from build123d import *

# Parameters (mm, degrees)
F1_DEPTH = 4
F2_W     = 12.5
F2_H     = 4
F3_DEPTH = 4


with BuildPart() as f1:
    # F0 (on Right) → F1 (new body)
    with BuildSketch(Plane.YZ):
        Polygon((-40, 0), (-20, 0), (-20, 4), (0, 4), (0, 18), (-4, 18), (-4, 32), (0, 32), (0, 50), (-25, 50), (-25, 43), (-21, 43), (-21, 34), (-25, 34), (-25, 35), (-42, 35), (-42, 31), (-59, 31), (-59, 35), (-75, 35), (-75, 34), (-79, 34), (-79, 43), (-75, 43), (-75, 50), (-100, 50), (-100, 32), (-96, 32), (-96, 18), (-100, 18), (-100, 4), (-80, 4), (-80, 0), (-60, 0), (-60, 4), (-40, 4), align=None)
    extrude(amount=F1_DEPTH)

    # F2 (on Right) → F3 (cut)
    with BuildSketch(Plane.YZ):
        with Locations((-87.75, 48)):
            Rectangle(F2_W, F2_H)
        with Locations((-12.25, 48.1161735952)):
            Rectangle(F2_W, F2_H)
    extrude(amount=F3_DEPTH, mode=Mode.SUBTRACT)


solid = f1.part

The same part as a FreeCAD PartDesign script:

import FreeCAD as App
import Part
import Sketcher
Q = App.Units.Quantity


def add_polygon(sketch, points):
    """Adds a closed chain of lines whose ends are joined by coincident constraints."""
    first, n = sketch.GeometryCount, len(points)
    for a, b in zip(points, points[1:] + points[:1]):
        sketch.addGeometry(Part.LineSegment(App.Vector(*a, 0), App.Vector(*b, 0)), False)
    for i in range(n):
        sketch.addConstraint(Sketcher.Constraint("Coincident", first + i, 2, first + (i + 1) % n, 1))

doc = App.newDocument("Part")
params = doc.addObject("Spreadsheet::Sheet", "Params")
for row, (alias, value) in enumerate([
    ("sketch1_width", "20 mm"),
    ("sketch1_width2", "4 mm"),
    ("sketch1_width3", "25 mm"),
    ("sketch1_width4", "17 mm"),
    ("sketch1_height", "14 mm"),
    ("pad1_length", "4 mm"),
    ("sketch2_height", "4 mm"),
    ("sketch2_width", "12.5 mm"),
    ("pocket1_length", "4 mm"),
], start=1):
    params.set(f"A{row}", alias)
    params.set(f"B{row}", "=" + value)
    params.setAlias(f"B{row}", alias)

body = doc.addObject("PartDesign::Body", "Body")

# Sketch on YZ plane
sketch1 = body.newObject("Sketcher::SketchObject", "Sketch")
sketch1.AttachmentSupport = (doc.getObject("YZ_Plane"), [""])
sketch1.MapMode = "FlatFace"
add_polygon(sketch1, [(-40, 0), (-20, 0), (-20, 4), (0, 4), (0, 18), (-4, 18), (-4, 32), (0, 32), (0, 50), (-25, 50), (-25, 43), (-21, 43), (-21, 34), (-25, 34), (-25, 35), (-42, 35), (-42, 31), (-59, 31), (-59, 35), (-75, 35), (-75, 34), (-79, 34), (-79, 43), (-75, 43), (-75, 50), (-100, 50), (-100, 32), (-96, 32), (-96, 18), (-100, 18), (-100, 4), (-80, 4), (-80, 0), (-60, 0), (-60, 4), (-40, 4)])  # lines 0-35
sketch1.addConstraint(Sketcher.Constraint("Horizontal", 0))
sketch1.addConstraint(Sketcher.Constraint("Vertical", 1))
sketch1.addConstraint(Sketcher.Constraint("Horizontal", 2))
sketch1.addConstraint(Sketcher.Constraint("Vertical", 3))
sketch1.addConstraint(Sketcher.Constraint("Horizontal", 4))
sketch1.addConstraint(Sketcher.Constraint("Vertical", 5))
sketch1.addConstraint(Sketcher.Constraint("Horizontal", 6))
sketch1.addConstraint(Sketcher.Constraint("Vertical", 7))
sketch1.addConstraint(Sketcher.Constraint("Horizontal", 8))
sketch1.addConstraint(Sketcher.Constraint("Vertical", 9))
sketch1.addConstraint(Sketcher.Constraint("Horizontal", 10))
sketch1.addConstraint(Sketcher.Constraint("Vertical", 11))
sketch1.addConstraint(Sketcher.Constraint("Horizontal", 12))
sketch1.addConstraint(Sketcher.Constraint("Vertical", 13))
sketch1.addConstraint(Sketcher.Constraint("Horizontal", 14))
sketch1.addConstraint(Sketcher.Constraint("Vertical", 15))
sketch1.addConstraint(Sketcher.Constraint("Horizontal", 16))
sketch1.addConstraint(Sketcher.Constraint("Vertical", 17))
sketch1.addConstraint(Sketcher.Constraint("Horizontal", 18))
sketch1.addConstraint(Sketcher.Constraint("Vertical", 19))
sketch1.addConstraint(Sketcher.Constraint("Horizontal", 20))
sketch1.addConstraint(Sketcher.Constraint("Vertical", 21))
sketch1.addConstraint(Sketcher.Constraint("Horizontal", 22))
sketch1.addConstraint(Sketcher.Constraint("Vertical", 23))
sketch1.addConstraint(Sketcher.Constraint("Horizontal", 24))
sketch1.addConstraint(Sketcher.Constraint("Vertical", 25))
sketch1.addConstraint(Sketcher.Constraint("Horizontal", 26))
sketch1.addConstraint(Sketcher.Constraint("Vertical", 27))
sketch1.addConstraint(Sketcher.Constraint("Horizontal", 28))
sketch1.addConstraint(Sketcher.Constraint("Vertical", 29))
sketch1.addConstraint(Sketcher.Constraint("Horizontal", 30))
sketch1.addConstraint(Sketcher.Constraint("Vertical", 31))
sketch1.addConstraint(Sketcher.Constraint("Horizontal", 32))
sketch1.addConstraint(Sketcher.Constraint("Vertical", 33))
sketch1.addConstraint(Sketcher.Constraint("Horizontal", 34))
sketch1.addConstraint(Sketcher.Constraint("Vertical", 35))
sketch1.addConstraint(Sketcher.Constraint("PointOnObject", 0, 2, -1))
sketch1.addConstraint(Sketcher.Constraint("PointOnObject", 2, 2, -2))
sketch1.addConstraint(Sketcher.Constraint("PointOnObject", 6, 2, -2))
sketch1.addConstraint(Sketcher.Constraint("PointOnObject", 31, 2, -1))
sketch1.addConstraint(Sketcher.Constraint("Horizontal", 14, 2, 17, 2))
sketch1.addConstraint(Sketcher.Constraint("Horizontal", 12, 2, 19, 2))
sketch1.addConstraint(Sketcher.Constraint("Horizontal", 10, 2, 21, 2))
sketch1.addConstraint(Sketcher.Constraint("Horizontal", 8, 2, 23, 2))
sketch1.addConstraint(Sketcher.Constraint("Horizontal", 6, 2, 25, 2))
sketch1.addConstraint(Sketcher.Constraint("Horizontal", 4, 2, 27, 2))
sketch1.addConstraint(Sketcher.Constraint("Horizontal", 2, 2, 29, 2))
sketch1.addConstraint(Sketcher.Constraint("Horizontal", 30, 2, 33, 2))
sketch1.addConstraint(Sketcher.Constraint("Vertical", 9, 2, 12, 2))
sketch1.addConstraint(Sketcher.Constraint("Vertical", 19, 2, 22, 2))
sketch1.addConstraint(Sketcher.Constraint("Vertical", 25, 2, 28, 2))
sketch1.addConstraint(Sketcher.Constraint("Equal", 0, 2))
sketch1.addConstraint(Sketcher.Constraint("Equal", 6, 10))
sketch1.addConstraint(Sketcher.Constraint("Equal", 14, 16))
sketch1.addConstraint(Sketcher.Constraint("Equal", 12, 20))
sketch1.addConstraint(Sketcher.Constraint("Equal", 8, 24))
sketch1.addConstraint(Sketcher.Constraint("Equal", 22, 26))
sketch1.addConstraint(Sketcher.Constraint("Equal", 2, 30))
sketch1.addConstraint(Sketcher.Constraint("Equal", 30, 32))
sketch1.addConstraint(Sketcher.Constraint("Equal", 32, 34))
sketch1.addConstraint(Sketcher.Constraint("Equal", 28, 1))
sketch1.addConstraint(Sketcher.Constraint("Equal", 3, 5))
sketch1.addConstraint(Sketcher.Constraint("Equal", 1, 15))
sketch1.addConstraint(Sketcher.Constraint("DistanceX", 0, 1, 0, 2, Q("20 mm")))
sketch1.addConstraint(Sketcher.Constraint("DistanceX", 4, 2, 4, 1, Q("4 mm")))
sketch1.addConstraint(Sketcher.Constraint("DistanceX", 8, 2, 8, 1, Q("25 mm")))
sketch1.addConstraint(Sketcher.Constraint("DistanceX", 14, 2, 14, 1, Q("17 mm")))
sketch1.addConstraint(Sketcher.Constraint("DistanceY", 3, 1, 3, 2, Q("14 mm")))
sketch1.addConstraint(Sketcher.Constraint("DistanceY", 7, 1, 7, 2, Q("18 mm")))
sketch1.addConstraint(Sketcher.Constraint("DistanceY", 9, 2, 9, 1, Q("7 mm")))
sketch1.addConstraint(Sketcher.Constraint("DistanceY", 11, 2, 11, 1, Q("9 mm")))
sketch1.addConstraint(Sketcher.Constraint("DistanceY", 13, 1, 13, 2, Q("1 mm")))
sketch1.setExpression("Constraints[99]", "Params.sketch1_width")
sketch1.setExpression("Constraints[100]", "Params.sketch1_width2")
sketch1.setExpression("Constraints[101]", "Params.sketch1_width3")
sketch1.setExpression("Constraints[102]", "Params.sketch1_width4")
sketch1.setExpression("Constraints[103]", "Params.sketch1_height")
pad1 = body.newObject("PartDesign::Pad", "Pad")
pad1.Profile = sketch1
pad1.setExpression("Length", "Params.pad1_length")

# Sketch on YZ plane
sketch2 = body.newObject("Sketcher::SketchObject", "Sketch001")
sketch2.AttachmentSupport = (doc.getObject("YZ_Plane"), [""])
sketch2.MapMode = "FlatFace"
add_polygon(sketch2, [(-94, 50), (-94, 46), (-81.5, 46), (-81.5, 50)])  # lines 0-3
add_polygon(sketch2, [(-18.5, 50.1), (-18.5, 46.1), (-6, 46.1), (-6, 50.1)])  # lines 4-7
sketch2.addConstraint(Sketcher.Constraint("Vertical", 0))
sketch2.addConstraint(Sketcher.Constraint("Horizontal", 1))
sketch2.addConstraint(Sketcher.Constraint("Vertical", 2))
sketch2.addConstraint(Sketcher.Constraint("Horizontal", 3))
sketch2.addConstraint(Sketcher.Constraint("Vertical", 4))
sketch2.addConstraint(Sketcher.Constraint("Horizontal", 5))
sketch2.addConstraint(Sketcher.Constraint("Vertical", 6))
sketch2.addConstraint(Sketcher.Constraint("Horizontal", 7))
sketch2.addConstraint(Sketcher.Constraint("Equal", 3, 5))
sketch2.addConstraint(Sketcher.Constraint("Equal", 2, 4))
sketch2.addConstraint(Sketcher.Constraint("DistanceY", 0, 2, 0, 1, Q("4 mm")))
sketch2.addConstraint(Sketcher.Constraint("DistanceX", 1, 1, 1, 2, Q("12.5 mm")))
sketch2.addConstraint(Sketcher.Constraint("DistanceX", 0, 2, -1, 1, Q("94 mm")))
sketch2.addConstraint(Sketcher.Constraint("DistanceY", -1, 1, 0, 2, Q("46 mm")))
sketch2.addConstraint(Sketcher.Constraint("DistanceX", 5, 2, -1, 1, Q("6 mm")))
sketch2.addConstraint(Sketcher.Constraint("DistanceY", -1, 1, 4, 2, Q("46.116174 mm")))
sketch2.setExpression("Constraints[18]", "Params.sketch2_height")
sketch2.setExpression("Constraints[19]", "Params.sketch2_width")
pocket1 = body.newObject("PartDesign::Pocket", "Pocket")
pocket1.Profile = sketch2
pocket1.setExpression("Length", "Params.pocket1_length")
pocket1.Reversed = True

doc.recompute()
